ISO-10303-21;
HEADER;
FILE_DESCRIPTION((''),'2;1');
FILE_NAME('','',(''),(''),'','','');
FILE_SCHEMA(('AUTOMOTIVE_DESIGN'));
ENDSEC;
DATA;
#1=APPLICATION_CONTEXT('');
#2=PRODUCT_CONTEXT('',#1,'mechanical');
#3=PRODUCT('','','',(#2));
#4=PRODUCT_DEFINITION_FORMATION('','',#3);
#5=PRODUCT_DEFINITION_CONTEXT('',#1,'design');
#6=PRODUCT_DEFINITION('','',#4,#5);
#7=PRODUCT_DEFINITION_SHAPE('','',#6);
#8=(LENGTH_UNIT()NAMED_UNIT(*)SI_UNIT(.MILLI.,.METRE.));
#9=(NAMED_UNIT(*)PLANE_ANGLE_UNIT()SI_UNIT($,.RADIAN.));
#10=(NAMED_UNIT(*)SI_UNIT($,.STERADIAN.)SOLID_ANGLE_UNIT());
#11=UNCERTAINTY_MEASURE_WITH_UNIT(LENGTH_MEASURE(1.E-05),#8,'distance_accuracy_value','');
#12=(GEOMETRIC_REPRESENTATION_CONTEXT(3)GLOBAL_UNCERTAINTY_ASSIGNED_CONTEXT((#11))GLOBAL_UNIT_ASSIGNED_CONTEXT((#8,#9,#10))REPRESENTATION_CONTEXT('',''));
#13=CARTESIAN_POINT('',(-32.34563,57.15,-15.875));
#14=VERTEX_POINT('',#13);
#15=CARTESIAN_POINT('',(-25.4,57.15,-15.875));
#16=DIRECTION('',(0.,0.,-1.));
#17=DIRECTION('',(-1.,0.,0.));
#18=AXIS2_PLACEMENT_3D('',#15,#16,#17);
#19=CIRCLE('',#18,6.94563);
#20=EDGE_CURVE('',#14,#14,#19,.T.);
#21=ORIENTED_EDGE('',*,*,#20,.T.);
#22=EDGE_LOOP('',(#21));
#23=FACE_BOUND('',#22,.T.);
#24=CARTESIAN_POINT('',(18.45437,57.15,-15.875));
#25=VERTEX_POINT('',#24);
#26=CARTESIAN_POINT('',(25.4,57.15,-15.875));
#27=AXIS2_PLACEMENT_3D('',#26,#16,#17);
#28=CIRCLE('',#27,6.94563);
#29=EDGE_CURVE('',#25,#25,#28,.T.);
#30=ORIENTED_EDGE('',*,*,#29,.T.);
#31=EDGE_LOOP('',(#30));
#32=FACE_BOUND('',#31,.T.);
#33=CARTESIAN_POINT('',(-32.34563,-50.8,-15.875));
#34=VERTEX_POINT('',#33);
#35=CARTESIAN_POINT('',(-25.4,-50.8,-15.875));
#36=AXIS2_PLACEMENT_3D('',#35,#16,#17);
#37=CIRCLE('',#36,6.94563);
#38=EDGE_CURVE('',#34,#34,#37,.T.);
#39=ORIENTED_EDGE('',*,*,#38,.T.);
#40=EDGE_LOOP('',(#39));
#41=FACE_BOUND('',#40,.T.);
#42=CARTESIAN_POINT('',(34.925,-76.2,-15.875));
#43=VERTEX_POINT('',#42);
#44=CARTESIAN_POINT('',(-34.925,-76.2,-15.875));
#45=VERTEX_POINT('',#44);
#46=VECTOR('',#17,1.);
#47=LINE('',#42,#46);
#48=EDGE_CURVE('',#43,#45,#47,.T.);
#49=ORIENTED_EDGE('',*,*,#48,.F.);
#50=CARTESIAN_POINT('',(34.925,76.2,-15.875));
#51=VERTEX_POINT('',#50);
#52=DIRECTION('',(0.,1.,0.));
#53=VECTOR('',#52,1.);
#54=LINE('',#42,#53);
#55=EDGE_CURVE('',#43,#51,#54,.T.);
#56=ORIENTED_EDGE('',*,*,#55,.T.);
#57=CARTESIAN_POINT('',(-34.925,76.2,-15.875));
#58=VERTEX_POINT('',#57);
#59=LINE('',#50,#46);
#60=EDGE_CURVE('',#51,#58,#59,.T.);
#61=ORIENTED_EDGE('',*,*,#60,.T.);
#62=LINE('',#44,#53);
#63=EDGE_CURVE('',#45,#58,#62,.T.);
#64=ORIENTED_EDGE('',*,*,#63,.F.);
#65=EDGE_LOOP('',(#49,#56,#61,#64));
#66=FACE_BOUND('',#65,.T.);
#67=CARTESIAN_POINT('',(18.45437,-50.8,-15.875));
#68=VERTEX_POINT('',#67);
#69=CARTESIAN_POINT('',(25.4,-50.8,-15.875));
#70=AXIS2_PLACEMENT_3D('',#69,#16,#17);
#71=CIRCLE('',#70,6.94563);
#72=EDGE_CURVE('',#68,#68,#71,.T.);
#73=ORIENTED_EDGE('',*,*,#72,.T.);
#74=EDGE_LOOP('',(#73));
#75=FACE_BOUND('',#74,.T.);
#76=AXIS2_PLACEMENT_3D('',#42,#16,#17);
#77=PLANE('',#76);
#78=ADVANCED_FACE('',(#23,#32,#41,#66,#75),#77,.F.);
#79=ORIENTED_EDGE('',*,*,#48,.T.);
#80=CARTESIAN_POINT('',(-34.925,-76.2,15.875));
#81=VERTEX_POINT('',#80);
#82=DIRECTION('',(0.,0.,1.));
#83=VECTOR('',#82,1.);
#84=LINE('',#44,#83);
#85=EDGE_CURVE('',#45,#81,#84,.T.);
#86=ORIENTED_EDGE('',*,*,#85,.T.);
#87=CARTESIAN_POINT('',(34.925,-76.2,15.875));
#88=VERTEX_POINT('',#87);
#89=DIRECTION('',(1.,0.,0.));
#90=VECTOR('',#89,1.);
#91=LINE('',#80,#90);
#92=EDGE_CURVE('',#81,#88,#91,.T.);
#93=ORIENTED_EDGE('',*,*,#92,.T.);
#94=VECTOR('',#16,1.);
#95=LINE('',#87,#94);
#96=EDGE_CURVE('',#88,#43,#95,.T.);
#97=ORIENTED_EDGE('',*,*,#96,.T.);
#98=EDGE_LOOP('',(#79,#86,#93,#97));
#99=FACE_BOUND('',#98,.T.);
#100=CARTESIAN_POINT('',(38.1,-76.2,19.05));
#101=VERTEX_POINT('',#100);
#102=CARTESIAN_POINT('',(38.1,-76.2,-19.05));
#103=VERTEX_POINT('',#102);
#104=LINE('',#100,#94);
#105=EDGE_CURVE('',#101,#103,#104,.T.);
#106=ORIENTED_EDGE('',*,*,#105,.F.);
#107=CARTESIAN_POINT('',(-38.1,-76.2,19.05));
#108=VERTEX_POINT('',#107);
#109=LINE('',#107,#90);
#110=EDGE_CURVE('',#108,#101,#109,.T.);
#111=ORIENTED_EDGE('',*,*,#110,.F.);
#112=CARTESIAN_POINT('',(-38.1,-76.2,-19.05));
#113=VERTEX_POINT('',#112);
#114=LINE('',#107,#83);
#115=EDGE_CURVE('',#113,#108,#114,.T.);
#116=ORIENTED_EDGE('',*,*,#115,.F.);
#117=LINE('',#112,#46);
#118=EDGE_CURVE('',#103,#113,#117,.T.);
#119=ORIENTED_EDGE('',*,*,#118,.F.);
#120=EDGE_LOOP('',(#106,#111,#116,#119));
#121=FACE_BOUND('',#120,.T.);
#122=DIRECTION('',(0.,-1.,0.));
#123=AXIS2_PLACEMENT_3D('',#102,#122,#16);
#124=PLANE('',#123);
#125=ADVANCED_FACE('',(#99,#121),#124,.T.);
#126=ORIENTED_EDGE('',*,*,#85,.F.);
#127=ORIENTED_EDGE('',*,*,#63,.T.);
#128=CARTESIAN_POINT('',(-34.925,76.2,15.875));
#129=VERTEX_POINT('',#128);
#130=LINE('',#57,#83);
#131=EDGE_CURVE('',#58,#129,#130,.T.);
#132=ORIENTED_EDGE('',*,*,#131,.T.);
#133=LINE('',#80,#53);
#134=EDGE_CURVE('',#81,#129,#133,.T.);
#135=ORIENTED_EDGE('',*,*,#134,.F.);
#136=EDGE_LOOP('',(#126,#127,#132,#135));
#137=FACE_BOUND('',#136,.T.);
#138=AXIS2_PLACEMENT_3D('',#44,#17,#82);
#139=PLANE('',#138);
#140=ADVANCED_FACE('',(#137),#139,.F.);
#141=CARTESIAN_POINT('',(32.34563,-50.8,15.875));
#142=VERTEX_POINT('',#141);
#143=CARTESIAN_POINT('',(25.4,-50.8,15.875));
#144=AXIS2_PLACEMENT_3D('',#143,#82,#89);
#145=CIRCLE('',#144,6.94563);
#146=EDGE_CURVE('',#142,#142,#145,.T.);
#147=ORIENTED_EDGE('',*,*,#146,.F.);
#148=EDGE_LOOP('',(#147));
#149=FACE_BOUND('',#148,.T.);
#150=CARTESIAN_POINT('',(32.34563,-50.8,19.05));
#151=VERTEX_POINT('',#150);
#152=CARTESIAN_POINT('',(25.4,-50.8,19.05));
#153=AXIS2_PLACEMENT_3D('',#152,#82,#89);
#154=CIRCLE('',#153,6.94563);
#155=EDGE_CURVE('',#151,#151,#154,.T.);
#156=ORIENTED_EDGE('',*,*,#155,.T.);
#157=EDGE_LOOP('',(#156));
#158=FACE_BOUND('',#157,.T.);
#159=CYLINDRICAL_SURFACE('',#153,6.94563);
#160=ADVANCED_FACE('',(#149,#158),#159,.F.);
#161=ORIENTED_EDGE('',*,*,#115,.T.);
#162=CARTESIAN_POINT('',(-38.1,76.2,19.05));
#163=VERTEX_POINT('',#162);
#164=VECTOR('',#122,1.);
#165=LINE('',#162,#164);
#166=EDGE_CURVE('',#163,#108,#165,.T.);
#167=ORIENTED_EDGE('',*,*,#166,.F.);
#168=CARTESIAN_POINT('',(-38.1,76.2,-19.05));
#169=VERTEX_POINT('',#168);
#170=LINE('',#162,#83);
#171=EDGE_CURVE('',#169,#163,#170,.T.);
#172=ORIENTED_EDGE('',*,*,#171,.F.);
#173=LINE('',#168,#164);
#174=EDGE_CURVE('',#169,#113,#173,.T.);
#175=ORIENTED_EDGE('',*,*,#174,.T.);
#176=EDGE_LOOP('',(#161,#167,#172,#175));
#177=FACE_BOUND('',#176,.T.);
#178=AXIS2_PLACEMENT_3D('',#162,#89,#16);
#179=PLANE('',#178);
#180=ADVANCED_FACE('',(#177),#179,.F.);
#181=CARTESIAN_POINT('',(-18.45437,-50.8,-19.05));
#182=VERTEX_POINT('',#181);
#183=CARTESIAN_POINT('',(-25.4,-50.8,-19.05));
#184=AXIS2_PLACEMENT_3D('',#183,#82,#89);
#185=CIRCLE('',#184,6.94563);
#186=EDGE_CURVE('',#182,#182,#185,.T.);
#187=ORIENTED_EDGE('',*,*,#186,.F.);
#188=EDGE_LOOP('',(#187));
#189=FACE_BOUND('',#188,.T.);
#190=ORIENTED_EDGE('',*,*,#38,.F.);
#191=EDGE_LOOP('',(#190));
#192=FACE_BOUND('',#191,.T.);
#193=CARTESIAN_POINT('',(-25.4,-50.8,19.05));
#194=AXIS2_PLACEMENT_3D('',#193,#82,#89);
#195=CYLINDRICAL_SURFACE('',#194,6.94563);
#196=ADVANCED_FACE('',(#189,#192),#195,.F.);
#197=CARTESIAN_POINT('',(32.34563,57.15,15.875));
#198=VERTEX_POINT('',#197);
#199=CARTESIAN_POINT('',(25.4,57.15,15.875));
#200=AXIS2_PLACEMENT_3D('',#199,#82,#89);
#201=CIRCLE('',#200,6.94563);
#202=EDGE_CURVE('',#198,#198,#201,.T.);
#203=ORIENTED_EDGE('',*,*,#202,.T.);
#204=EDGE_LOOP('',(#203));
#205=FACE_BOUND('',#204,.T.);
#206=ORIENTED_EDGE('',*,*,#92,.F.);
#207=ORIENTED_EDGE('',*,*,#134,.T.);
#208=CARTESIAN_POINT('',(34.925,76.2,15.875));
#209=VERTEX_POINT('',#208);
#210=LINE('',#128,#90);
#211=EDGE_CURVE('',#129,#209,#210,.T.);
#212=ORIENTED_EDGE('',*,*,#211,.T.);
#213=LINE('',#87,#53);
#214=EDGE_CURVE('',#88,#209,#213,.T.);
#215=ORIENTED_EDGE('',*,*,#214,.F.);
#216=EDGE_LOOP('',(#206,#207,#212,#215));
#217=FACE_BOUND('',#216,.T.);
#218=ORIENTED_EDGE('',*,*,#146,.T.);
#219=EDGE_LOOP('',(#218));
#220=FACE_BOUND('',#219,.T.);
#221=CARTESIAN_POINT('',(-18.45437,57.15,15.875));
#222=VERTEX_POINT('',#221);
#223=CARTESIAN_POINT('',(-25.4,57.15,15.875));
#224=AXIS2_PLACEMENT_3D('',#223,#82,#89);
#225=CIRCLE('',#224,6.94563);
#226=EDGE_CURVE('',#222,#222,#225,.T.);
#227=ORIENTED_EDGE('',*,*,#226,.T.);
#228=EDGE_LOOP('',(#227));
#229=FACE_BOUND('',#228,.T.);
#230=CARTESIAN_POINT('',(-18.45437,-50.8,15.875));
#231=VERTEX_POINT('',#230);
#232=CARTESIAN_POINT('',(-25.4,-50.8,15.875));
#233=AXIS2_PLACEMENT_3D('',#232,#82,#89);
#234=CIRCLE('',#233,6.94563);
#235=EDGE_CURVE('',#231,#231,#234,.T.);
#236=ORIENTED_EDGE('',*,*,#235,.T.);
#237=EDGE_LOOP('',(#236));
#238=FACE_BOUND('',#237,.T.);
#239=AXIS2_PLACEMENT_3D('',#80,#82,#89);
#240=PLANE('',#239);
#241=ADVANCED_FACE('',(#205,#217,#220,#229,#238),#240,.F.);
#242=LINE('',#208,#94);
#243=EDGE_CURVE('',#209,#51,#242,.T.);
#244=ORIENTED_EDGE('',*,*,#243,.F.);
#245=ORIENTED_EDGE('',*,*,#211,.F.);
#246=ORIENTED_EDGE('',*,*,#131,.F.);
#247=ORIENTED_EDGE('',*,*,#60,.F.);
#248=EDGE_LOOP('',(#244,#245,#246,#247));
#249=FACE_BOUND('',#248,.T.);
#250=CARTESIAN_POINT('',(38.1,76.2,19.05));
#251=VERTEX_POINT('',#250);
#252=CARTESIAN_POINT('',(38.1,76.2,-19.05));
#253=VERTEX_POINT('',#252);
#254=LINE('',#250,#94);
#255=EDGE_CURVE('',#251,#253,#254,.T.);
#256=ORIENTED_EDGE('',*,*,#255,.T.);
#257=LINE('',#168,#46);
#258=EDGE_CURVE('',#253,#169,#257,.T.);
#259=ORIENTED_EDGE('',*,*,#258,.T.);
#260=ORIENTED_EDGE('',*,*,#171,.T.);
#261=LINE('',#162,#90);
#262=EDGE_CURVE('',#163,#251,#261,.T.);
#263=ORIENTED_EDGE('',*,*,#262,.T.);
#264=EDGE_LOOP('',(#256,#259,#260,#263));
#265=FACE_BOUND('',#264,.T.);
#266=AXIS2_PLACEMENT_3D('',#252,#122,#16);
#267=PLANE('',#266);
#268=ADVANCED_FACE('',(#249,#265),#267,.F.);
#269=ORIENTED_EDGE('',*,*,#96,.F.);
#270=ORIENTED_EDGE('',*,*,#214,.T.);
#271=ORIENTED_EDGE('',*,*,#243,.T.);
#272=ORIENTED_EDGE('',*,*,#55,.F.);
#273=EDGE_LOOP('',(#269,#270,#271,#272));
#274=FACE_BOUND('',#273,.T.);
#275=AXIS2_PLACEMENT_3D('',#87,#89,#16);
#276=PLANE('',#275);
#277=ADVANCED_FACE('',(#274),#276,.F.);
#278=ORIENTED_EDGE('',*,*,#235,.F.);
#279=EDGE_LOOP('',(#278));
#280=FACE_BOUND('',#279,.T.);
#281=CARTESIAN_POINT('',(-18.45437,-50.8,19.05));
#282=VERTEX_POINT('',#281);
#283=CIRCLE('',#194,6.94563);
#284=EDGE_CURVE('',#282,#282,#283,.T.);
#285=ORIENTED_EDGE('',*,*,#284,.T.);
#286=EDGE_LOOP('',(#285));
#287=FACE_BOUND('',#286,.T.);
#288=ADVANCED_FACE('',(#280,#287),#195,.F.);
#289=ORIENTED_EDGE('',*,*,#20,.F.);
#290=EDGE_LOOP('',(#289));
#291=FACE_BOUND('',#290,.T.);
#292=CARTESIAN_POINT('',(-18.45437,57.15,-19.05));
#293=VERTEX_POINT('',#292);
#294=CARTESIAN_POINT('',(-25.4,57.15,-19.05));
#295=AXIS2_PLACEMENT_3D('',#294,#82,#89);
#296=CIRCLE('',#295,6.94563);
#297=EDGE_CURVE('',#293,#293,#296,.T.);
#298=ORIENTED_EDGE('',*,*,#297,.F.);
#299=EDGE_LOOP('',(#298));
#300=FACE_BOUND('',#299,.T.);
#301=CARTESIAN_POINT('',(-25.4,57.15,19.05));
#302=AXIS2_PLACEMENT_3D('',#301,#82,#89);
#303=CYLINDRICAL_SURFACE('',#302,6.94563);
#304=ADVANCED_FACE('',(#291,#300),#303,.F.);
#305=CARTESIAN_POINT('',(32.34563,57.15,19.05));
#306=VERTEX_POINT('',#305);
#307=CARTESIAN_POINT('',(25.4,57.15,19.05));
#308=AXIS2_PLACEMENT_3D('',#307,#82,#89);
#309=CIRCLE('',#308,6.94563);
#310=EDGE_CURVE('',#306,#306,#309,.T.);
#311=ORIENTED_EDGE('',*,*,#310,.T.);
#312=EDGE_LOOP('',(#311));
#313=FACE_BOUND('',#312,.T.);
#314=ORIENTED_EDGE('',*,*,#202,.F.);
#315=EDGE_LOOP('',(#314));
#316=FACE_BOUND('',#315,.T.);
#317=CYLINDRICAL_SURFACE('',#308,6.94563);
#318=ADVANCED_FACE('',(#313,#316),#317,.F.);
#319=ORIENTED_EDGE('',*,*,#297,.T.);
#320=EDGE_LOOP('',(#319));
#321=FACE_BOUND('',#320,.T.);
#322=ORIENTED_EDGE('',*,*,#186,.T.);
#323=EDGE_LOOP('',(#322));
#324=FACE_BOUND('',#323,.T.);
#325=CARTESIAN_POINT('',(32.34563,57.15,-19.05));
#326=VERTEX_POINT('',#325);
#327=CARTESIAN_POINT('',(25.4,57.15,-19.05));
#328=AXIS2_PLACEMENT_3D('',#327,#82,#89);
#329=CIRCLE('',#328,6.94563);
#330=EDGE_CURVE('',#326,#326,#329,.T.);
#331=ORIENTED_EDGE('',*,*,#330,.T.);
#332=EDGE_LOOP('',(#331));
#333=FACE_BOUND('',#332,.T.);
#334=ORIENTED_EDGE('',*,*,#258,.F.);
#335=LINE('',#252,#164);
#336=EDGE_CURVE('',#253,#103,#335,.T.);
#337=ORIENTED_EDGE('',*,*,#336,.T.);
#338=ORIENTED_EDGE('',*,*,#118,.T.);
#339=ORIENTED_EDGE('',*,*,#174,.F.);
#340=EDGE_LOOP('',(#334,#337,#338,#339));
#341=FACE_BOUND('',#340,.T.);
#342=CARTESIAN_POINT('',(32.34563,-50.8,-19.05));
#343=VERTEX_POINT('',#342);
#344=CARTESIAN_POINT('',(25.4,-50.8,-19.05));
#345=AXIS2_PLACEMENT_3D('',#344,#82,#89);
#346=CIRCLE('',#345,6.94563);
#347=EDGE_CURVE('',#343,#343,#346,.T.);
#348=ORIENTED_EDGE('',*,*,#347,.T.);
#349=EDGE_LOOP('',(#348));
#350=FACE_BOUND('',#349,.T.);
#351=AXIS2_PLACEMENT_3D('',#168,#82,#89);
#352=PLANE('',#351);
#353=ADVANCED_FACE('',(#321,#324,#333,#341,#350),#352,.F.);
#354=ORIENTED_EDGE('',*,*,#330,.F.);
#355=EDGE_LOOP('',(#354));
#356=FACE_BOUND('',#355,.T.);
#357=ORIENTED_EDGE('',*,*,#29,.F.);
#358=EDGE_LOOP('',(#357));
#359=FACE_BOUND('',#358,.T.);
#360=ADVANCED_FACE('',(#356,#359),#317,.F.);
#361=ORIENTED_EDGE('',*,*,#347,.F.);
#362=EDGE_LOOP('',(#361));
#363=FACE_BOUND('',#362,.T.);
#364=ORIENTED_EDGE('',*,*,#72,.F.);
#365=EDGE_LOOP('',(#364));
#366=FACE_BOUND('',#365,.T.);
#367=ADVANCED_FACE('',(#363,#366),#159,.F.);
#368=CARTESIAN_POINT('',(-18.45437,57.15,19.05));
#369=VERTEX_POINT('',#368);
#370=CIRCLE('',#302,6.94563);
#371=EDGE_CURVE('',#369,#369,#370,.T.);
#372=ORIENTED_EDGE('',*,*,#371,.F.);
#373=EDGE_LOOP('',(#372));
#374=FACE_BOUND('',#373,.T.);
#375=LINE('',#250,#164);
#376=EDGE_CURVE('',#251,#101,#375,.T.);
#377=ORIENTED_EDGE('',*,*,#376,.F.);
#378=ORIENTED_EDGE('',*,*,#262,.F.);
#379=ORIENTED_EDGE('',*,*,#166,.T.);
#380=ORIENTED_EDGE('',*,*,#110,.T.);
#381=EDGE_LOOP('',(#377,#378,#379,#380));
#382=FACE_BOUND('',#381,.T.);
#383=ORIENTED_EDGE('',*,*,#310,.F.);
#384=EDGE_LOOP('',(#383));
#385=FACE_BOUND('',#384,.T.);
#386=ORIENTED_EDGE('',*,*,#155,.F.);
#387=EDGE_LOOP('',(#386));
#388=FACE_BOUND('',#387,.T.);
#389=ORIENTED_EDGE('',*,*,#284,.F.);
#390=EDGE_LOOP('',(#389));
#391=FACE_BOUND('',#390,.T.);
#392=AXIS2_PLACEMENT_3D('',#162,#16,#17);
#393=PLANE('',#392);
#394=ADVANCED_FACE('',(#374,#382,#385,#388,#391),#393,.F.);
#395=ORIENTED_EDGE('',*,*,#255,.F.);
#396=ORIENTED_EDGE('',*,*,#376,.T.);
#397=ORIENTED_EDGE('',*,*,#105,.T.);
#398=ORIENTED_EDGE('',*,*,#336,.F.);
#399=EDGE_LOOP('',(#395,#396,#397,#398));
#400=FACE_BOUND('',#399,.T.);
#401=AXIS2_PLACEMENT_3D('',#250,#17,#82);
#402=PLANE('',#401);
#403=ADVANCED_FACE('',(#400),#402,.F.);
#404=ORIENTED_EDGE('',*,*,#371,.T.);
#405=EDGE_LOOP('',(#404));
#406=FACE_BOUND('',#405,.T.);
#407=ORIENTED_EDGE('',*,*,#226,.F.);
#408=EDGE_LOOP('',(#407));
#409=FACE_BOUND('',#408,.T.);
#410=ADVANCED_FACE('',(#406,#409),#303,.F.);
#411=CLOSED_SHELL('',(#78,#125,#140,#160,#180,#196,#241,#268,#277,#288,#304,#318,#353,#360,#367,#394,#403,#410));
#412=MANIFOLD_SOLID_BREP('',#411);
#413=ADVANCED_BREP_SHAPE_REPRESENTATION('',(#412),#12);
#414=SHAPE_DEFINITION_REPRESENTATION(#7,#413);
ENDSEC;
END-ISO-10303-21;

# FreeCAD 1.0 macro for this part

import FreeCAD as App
import Part
import Sketcher
Q = App.Units.Quantity


def add_polygon(sketch, points):
    """Adds a closed chain of lines whose ends are joined by coincident constraints."""
    first, n = sketch.GeometryCount, len(points)
    for a, b in zip(points, points[1:] + points[:1]):
        sketch.addGeometry(Part.LineSegment(App.Vector(*a, 0), App.Vector(*b, 0)), False)
    for i in range(n):
        sketch.addConstraint(Sketcher.Constraint("Coincident", first + i, 2, first + (i + 1) % n, 1))

doc = App.newDocument("Part")
body = doc.addObject("PartDesign::Body", "Body")

sketch1 = body.newObject("Sketcher::SketchObject", "Sketch")
sketch1.AttachmentSupport = (doc.getObject("XZ_Plane"), [""])
sketch1.MapMode = "FlatFace"
add_polygon(sketch1, [(-38.1, -19.05), (-38.1, 19.05), (38.1, 19.05), (38.1, -19.05)])
sketch1.addConstraint([
    Sketcher.Constraint("Vertical", 0),
    Sketcher.Constraint("Horizontal", 1),
    Sketcher.Constraint("Vertical", 2),
    Sketcher.Constraint("Horizontal", 3),
    Sketcher.Constraint("Symmetric", 0, 2, 2, 2, -1, 1),
    Sketcher.Constraint("DistanceX", 1, 1, 1, 2, Q("3 in")),
    Sketcher.Constraint("DistanceY", 0, 1, 0, 2, Q("1.5 in")),
])
pad1 = body.newObject("PartDesign::Pad", "Pad")
pad1.Profile = sketch1
pad1.Length = Q("6 in")
pad1.Midplane = True

sketch2 = body.newObject("Sketcher::SketchObject", "Sketch001")
sketch2.AttachmentSupport = (doc.getObject("XZ_Plane"), [""])
sketch2.MapMode = "FlatFace"
sketch2.AttachmentOffset = App.Placement(App.Vector(0, 0, -3 * 25.4), App.Rotation())
add_polygon(sketch2, [(-34.925, -15.875), (-34.925, 15.875), (34.925, 15.875), (34.925, -15.875)])
sketch2.addConstraint([
    Sketcher.Constraint("Vertical", 0),
    Sketcher.Constraint("Horizontal", 1),
    Sketcher.Constraint("Vertical", 2),
    Sketcher.Constraint("Horizontal", 3),
    Sketcher.Constraint("Symmetric", 0, 2, 2, 2, -1, 1),
    Sketcher.Constraint("DistanceX", 1, 1, 1, 2, Q("2.75 in")),
    Sketcher.Constraint("DistanceY", 0, 1, 0, 2, Q("1.25 in")),
])
pocket1 = body.newObject("PartDesign::Pocket", "Pocket")
pocket1.Profile = sketch2
pocket1.Type = "ThroughAll"
pocket1.Reversed = True

sketch3 = body.newObject("Sketcher::SketchObject", "Sketch002")
sketch3.AttachmentSupport = (doc.getObject("XY_Plane"), [""])
sketch3.MapMode = "FlatFace"
sketch3.AttachmentOffset = App.Placement(App.Vector(0, 0, 0.75 * 25.4), App.Rotation())
sketch3.addGeometry([
    Part.Circle(App.Vector(25.4, 57.15, 0), App.Vector(0, 0, 1), 6.94563),
    Part.Circle(App.Vector(-25.4, 57.15, 0), App.Vector(0, 0, 1), 6.94563),
    Part.Circle(App.Vector(-25.4, -50.8, 0), App.Vector(0, 0, 1), 6.94563),
    Part.Circle(App.Vector(25.4, -50.8, 0), App.Vector(0, 0, 1), 6.94563),
], False)
sketch3.addConstraint([
    Sketcher.Constraint("Equal", 0, 1),
    Sketcher.Constraint("Equal", 1, 2),
    Sketcher.Constraint("Equal", 2, 3),
    Sketcher.Constraint("Symmetric", 0, 3, 1, 3, -2),
    Sketcher.Constraint("Symmetric", 2, 3, 3, 3, -2),
    Sketcher.Constraint("Vertical", 1, 3, 2, 3),
    Sketcher.Constraint("DistanceX", -1, 1, 0, 3, Q("1 in")),
    Sketcher.Constraint("DistanceY", 2, 3, -1, 1, Q("2 in")),
    Sketcher.Constraint("Diameter", 0, Q("0.5469 in")),
    Sketcher.Constraint("DistanceY", -1, 1, 0, 3, Q("2.25 in")),
])
doc.recompute()
hole = body.newObject("PartDesign::Hole", "Hole")
hole.Profile = sketch3
hole.ThreadType = "None"
hole.Diameter = Q("0.5469 in")
hole.DepthType = "ThroughAll"

doc.recompute()
